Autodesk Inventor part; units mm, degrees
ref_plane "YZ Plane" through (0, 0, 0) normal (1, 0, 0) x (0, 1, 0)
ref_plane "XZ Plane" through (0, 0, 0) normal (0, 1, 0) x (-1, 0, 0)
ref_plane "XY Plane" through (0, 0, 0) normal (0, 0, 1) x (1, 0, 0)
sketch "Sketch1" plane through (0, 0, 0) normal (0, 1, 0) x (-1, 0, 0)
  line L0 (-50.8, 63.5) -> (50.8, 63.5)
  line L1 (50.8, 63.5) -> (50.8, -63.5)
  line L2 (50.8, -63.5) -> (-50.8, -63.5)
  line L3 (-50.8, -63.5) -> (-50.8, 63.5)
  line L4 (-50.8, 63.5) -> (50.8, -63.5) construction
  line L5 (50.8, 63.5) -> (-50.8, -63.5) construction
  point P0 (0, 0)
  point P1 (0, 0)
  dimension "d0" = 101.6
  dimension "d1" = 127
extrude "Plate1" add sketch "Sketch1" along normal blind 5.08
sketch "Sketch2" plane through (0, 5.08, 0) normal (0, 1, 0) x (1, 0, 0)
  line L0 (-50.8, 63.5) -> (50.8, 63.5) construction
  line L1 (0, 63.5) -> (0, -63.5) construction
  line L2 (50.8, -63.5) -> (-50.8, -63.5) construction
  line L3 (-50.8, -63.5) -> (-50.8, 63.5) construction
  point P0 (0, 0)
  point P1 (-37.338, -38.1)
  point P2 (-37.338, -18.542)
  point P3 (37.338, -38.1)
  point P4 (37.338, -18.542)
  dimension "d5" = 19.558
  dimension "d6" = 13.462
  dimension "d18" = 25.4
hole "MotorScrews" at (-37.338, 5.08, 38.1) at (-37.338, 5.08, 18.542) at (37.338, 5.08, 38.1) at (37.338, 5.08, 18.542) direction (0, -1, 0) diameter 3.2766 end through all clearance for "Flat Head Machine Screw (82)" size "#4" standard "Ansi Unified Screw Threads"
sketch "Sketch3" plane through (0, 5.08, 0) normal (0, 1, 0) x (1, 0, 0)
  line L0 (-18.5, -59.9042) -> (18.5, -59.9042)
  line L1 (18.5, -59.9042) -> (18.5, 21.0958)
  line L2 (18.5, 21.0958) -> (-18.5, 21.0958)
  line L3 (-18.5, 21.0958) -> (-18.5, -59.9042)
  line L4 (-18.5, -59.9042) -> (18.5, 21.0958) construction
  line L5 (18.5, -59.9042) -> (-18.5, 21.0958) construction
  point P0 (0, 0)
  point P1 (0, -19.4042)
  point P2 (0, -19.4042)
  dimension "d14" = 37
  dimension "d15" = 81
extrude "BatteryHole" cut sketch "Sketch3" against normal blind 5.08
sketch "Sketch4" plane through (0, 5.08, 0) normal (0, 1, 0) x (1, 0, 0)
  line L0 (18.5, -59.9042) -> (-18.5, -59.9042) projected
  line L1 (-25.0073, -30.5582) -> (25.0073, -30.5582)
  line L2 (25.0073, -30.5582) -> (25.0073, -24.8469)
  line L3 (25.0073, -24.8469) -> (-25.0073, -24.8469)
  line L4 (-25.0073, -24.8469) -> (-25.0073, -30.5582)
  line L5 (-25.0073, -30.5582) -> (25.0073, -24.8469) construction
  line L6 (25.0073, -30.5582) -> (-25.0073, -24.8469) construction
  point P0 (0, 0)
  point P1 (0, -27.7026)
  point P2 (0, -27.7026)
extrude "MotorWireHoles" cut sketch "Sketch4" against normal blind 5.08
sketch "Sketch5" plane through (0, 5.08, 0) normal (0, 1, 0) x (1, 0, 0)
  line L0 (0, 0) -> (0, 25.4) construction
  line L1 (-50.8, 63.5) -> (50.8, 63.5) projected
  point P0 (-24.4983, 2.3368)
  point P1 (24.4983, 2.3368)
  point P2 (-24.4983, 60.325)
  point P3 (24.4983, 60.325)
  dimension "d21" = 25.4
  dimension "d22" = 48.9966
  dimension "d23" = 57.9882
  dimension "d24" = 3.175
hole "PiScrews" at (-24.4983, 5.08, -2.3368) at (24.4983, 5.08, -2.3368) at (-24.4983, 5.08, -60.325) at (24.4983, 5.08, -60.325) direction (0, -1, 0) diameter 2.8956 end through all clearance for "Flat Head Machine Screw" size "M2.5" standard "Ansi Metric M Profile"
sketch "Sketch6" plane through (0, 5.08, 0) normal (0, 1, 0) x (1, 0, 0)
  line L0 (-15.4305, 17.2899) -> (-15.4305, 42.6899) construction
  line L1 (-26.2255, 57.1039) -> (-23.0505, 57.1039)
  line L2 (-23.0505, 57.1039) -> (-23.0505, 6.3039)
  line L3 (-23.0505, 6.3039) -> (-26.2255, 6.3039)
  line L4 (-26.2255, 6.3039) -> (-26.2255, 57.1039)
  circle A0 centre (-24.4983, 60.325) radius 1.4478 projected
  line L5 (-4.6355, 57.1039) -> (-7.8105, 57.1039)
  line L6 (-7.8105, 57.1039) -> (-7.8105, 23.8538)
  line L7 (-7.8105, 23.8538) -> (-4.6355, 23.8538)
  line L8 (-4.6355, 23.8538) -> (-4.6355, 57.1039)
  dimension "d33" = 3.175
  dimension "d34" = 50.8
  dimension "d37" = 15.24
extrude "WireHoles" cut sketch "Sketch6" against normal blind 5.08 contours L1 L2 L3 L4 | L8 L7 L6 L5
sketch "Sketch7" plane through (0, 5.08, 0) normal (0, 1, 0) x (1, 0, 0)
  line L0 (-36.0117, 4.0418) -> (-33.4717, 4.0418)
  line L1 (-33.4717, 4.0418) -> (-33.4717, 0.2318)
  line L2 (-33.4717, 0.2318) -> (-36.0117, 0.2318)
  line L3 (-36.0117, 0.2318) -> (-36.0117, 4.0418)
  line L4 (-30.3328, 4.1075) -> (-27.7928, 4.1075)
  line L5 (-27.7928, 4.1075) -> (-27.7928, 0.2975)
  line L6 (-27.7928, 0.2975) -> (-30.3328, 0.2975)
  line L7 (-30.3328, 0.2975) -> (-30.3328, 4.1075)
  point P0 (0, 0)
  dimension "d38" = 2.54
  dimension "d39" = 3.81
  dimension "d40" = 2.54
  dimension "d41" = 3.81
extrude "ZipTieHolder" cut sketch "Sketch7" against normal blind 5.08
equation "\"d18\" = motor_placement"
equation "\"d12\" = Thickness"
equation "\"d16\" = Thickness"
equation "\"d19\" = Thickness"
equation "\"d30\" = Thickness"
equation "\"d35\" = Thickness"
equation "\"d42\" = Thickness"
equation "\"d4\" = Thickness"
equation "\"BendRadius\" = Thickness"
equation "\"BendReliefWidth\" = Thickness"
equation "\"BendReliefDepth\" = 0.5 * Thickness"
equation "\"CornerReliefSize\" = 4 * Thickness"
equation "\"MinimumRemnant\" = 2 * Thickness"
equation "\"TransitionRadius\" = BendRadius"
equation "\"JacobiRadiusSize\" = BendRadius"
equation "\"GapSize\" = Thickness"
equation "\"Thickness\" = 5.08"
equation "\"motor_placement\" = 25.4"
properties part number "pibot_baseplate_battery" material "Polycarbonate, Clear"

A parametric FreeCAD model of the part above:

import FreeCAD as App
import Part
import Sketcher

V = App.Vector
Q = App.Units.Quantity

doc = App.newDocument("Part")
body = doc.addObject("PartDesign::Body", "Body")

# Sketch on XZ plane
sketch1 = body.newObject("Sketcher::SketchObject", "Sketch")
sketch1.AttachmentSupport = (doc.getObject("XZ_Plane"), [""])
sketch1.MapMode = "FlatFace"
sketch1.addGeometry([
    Part.LineSegment(V(-51, 64, 0), V(51, 64, 0)),
    Part.LineSegment(V(51, 64, 0), V(51, -64, 0)),
    Part.LineSegment(V(51, -64, 0), V(-51, -64, 0)),
    Part.LineSegment(V(-51, -64, 0), V(-51, 64, 0)),
], False)
sketch1.addConstraint([
    Sketcher.Constraint("Coincident", 0, 2, 1, 1),
    Sketcher.Constraint("Coincident", 1, 2, 2, 1),
    Sketcher.Constraint("Coincident", 2, 2, 3, 1),
    Sketcher.Constraint("Coincident", 3, 2, 0, 1),
    Sketcher.Constraint("Horizontal", 0),
    Sketcher.Constraint("Vertical", 1),
    Sketcher.Constraint("Horizontal", 2),
    Sketcher.Constraint("Vertical", 3),
    Sketcher.Constraint("Symmetric", 0, 2, 2, 2, -1, 1),
    Sketcher.Constraint("DistanceX", 0, 1, 0, 2, Q("4 in")),
    Sketcher.Constraint("DistanceY", 1, 2, 1, 1, Q("5 in")),
])
pad1 = body.newObject("PartDesign::Pad", "Pad")
pad1.Profile = sketch1
pad1.Length = Q("0.2 in")
pad1.Reversed = True

# Sketch on XZ plane
sketch2 = body.newObject("Sketcher::SketchObject", "Sketch001")
sketch2.AttachmentSupport = (doc.getObject("XZ_Plane"), [""])
sketch2.MapMode = "FlatFace"
sketch2.AttachmentOffset = App.Placement(V(0, 0, -0.2 * 25.4), App.Rotation())
sketch2.addGeometry([
    Part.Circle(V(-37.3, 38.1, 0), V(0, 0, 1), 1.6),
    Part.Circle(V(-37.3, 18.5, 0), V(0, 0, 1), 1.6),
    Part.Circle(V(37.3, 38.1, 0), V(0, 0, 1), 1.6),
    Part.Circle(V(37.3, 18.5, 0), V(0, 0, 1), 1.6),
], False)
sketch2.addConstraint([
    Sketcher.Constraint("Equal", 0, 1),
    Sketcher.Constraint("Equal", 1, 2),
    Sketcher.Constraint("Equal", 2, 3),
    Sketcher.Constraint("Symmetric", 0, 3, 2, 3, -2),
    Sketcher.Constraint("Symmetric", 1, 3, 3, 3, -2),
    Sketcher.Constraint("Vertical", 0, 3, 1, 3),
    Sketcher.Constraint("Diameter", 0, Q("0.129 in")),
    Sketcher.Constraint("DistanceY", -1, 1, 0, 3, Q("1.5 in")),
    Sketcher.Constraint("DistanceX", 0, 3, -1, 1, Q("1.47 in")),
    Sketcher.Constraint("DistanceY", -1, 1, 1, 3, Q("0.73 in")),
])
doc.recompute()
hole = body.newObject("PartDesign::Hole", "Hole")
hole.Profile = sketch2
hole.ThreadType = "None"
hole.Diameter = Q("0.129 in")
hole.DepthType = "ThroughAll"
hole.Reversed = True

# Sketch on XZ plane
sketch3 = body.newObject("Sketcher::SketchObject", "Sketch002")
sketch3.AttachmentSupport = (doc.getObject("XZ_Plane"), [""])
sketch3.MapMode = "FlatFace"
sketch3.AttachmentOffset = App.Placement(V(0, 0, -0.2 * 25.4), App.Rotation())
sketch3.addGeometry([
    Part.LineSegment(V(-18, -21, 0), V(-18, 60, 0)),
    Part.LineSegment(V(-18, 60, 0), V(18, 60, 0)),
    Part.LineSegment(V(18, 60, 0), V(18, -21, 0)),
    Part.LineSegment(V(18, -21, 0), V(-18, -21, 0)),
], False)
sketch3.addConstraint([
    Sketcher.Constraint("Coincident", 0, 2, 1, 1),
    Sketcher.Constraint("Coincident", 1, 2, 2, 1),
    Sketcher.Constraint("Coincident", 2, 2, 3, 1),
    Sketcher.Constraint("Coincident", 3, 2, 0, 1),
    Sketcher.Constraint("Vertical", 0),
    Sketcher.Constraint("Horizontal", 1),
    Sketcher.Constraint("Vertical", 2),
    Sketcher.Constraint("Horizontal", 3),
    Sketcher.Constraint("DistanceX", 1, 1, 1, 2, Q("1.4567 in")),
    Sketcher.Constraint("DistanceY", 0, 1, 0, 2, 81.0),
    Sketcher.Constraint("DistanceX", 0, 2, -1, 1, 18.5),
    Sketcher.Constraint("DistanceY", -1, 1, 0, 2, 59.9042),
])
pocket1 = body.newObject("PartDesign::Pocket", "Pocket")
pocket1.Profile = sketch3
pocket1.Length = Q("0.2 in")
pocket1.Reversed = True

# Sketch on XZ plane
sketch4 = body.newObject("Sketcher::SketchObject", "Sketch003")
sketch4.AttachmentSupport = (doc.getObject("XZ_Plane"), [""])
sketch4.MapMode = "FlatFace"
sketch4.AttachmentOffset = App.Placement(V(0, 0, -0.2 * 25.4), App.Rotation())
sketch4.addGeometry([
    Part.LineSegment(V(-25, 25, 0), V(-25, 31, 0)),
    Part.LineSegment(V(-25, 31, 0), V(25, 31, 0)),
    Part.LineSegment(V(25, 31, 0), V(25, 25, 0)),
    Part.LineSegment(V(25, 25, 0), V(-25, 25, 0)),
], False)
sketch4.addConstraint([
    Sketcher.Constraint("Coincident", 0, 2, 1, 1),
    Sketcher.Constraint("Coincident", 1, 2, 2, 1),
    Sketcher.Constraint("Coincident", 2, 2, 3, 1),
    Sketcher.Constraint("Coincident", 3, 2, 0, 1),
    Sketcher.Constraint("Vertical", 0),
    Sketcher.Constraint("Horizontal", 1),
    Sketcher.Constraint("Vertical", 2),
    Sketcher.Constraint("Horizontal", 3),
    Sketcher.Constraint("DistanceX", 1, 1, 1, 2, 50.0146),
    Sketcher.Constraint("DistanceY", 0, 1, 0, 2, 5.7113),
    Sketcher.Constraint("DistanceX", 0, 2, -1, 1, 25.0073),
    Sketcher.Constraint("DistanceY", -1, 1, 0, 2, 30.5582),
])
pocket2 = body.newObject("PartDesign::Pocket", "Pocket001")
pocket2.Profile = sketch4
pocket2.Length = Q("0.2 in")
pocket2.Reversed = True

# Sketch on XZ plane
sketch5 = body.newObject("Sketcher::SketchObject", "Sketch004")
sketch5.AttachmentSupport = (doc.getObject("XZ_Plane"), [""])
sketch5.MapMode = "FlatFace"
sketch5.AttachmentOffset = App.Placement(V(0, 0, -0.2 * 25.4), App.Rotation())
sketch5.addGeometry([
    Part.Circle(V(-24.5, -2.3, 0), V(0, 0, 1), 1.4),
    Part.Circle(V(24.5, -2.3, 0), V(0, 0, 1), 1.4),
    Part.Circle(V(-24.5, -60.3, 0), V(0, 0, 1), 1.4),
    Part.Circle(V(24.5, -60.3, 0), V(0, 0, 1), 1.4),
], False)
sketch5.addConstraint([
    Sketcher.Constraint("Equal", 0, 1),
    Sketcher.Constraint("Equal", 1, 2),
    Sketcher.Constraint("Equal", 2, 3),
    Sketcher.Constraint("Symmetric", 0, 3, 1, 3, -2),
    Sketcher.Constraint("Symmetric", 2, 3, 3, 3, -2),
    Sketcher.Constraint("Vertical", 0, 3, 2, 3),
    Sketcher.Constraint("Diameter", 0, Q("0.114 in")),
    Sketcher.Constraint("DistanceY", 0, 3, -1, 1, Q("0.092 in")),
    Sketcher.Constraint("DistanceY", 2, 3, -1, 1, Q("2.375 in")),
    Sketcher.Constraint("DistanceX", 0, 3, 1, 3, Q("1.929 in")),
])
doc.recompute()
hole2 = body.newObject("PartDesign::Hole", "Hole001")
hole2.Profile = sketch5
hole2.ThreadType = "None"
hole2.Diameter = Q("0.114 in")
hole2.DepthType = "ThroughAll"
hole2.Reversed = True

# Sketch on XZ plane
sketch6 = body.newObject("Sketcher::SketchObject", "Sketch005")
sketch6.AttachmentSupport = (doc.getObject("XZ_Plane"), [""])
sketch6.MapMode = "FlatFace"
sketch6.AttachmentOffset = App.Placement(V(0, 0, -0.2 * 25.4), App.Rotation())
sketch6.addGeometry([
    Part.LineSegment(V(-23.1, -57.1, 0), V(-26.2, -57.1, 0)),  # 0
    Part.LineSegment(V(-26.2, -57.1, 0), V(-26.2, -6.3, 0)),  # 1
    Part.LineSegment(V(-26.2, -6.3, 0), V(-23.1, -6.3, 0)),  # 2
    Part.LineSegment(V(-23.1, -6.3, 0), V(-23.1, -57.1, 0)),  # 3
    Part.LineSegment(V(-4.6, -23.9, 0), V(-4.6, -57.1, 0)),  # 4
    Part.LineSegment(V(-4.6, -57.1, 0), V(-7.8, -57.1, 0)),  # 5
    Part.LineSegment(V(-7.8, -57.1, 0), V(-7.8, -23.9, 0)),  # 6
    Part.LineSegment(V(-7.8, -23.9, 0), V(-4.6, -23.9, 0)),  # 7
], False)
sketch6.addConstraint([
    Sketcher.Constraint("Coincident", 0, 2, 1, 1),
    Sketcher.Constraint("Coincident", 1, 2, 2, 1),
    Sketcher.Constraint("Coincident", 2, 2, 3, 1),
    Sketcher.Constraint("Coincident", 3, 2, 0, 1),
    Sketcher.Constraint("Coincident", 4, 2, 5, 1),
    Sketcher.Constraint("Coincident", 5, 2, 6, 1),
    Sketcher.Constraint("Coincident", 6, 2, 7, 1),
    Sketcher.Constraint("Coincident", 7, 2, 4, 1),
    Sketcher.Constraint("Horizontal", 0),
    Sketcher.Constraint("Vertical", 1),
    Sketcher.Constraint("Horizontal", 2),
    Sketcher.Constraint("Vertical", 3),
    Sketcher.Constraint("Vertical", 4),
    Sketcher.Constraint("Horizontal", 5),
    Sketcher.Constraint("Vertical", 6),
    Sketcher.Constraint("Horizontal", 7),
    Sketcher.Constraint("Horizontal", 3, 2, 4, 2),
    Sketcher.Constraint("Equal", 2, 5),
    Sketcher.Constraint("DistanceY", 1, 1, 1, 2, Q("2 in")),
    Sketcher.Constraint("DistanceX", 3, 2, 5, 2, Q("0.6 in")),
    Sketcher.Constraint("DistanceX", 0, 2, 0, 1, Q("0.125 in")),
    Sketcher.Constraint("DistanceY", 4, 2, 4, 1, 33.25),
    Sketcher.Constraint("DistanceX", 0, 2, -1, 1, Q("1.0325 in")),
    Sketcher.Constraint("DistanceY", 0, 2, -1, 1, Q("2.248189 in")),
])
pocket3 = body.newObject("PartDesign::Pocket", "Pocket002")
pocket3.Profile = sketch6
pocket3.Length = Q("0.2 in")
pocket3.Reversed = True

# Sketch on XZ plane
sketch7 = body.newObject("Sketcher::SketchObject", "Sketch006")
sketch7.AttachmentSupport = (doc.getObject("XZ_Plane"), [""])
sketch7.MapMode = "FlatFace"
sketch7.AttachmentOffset = App.Placement(V(0, 0, -0.2 * 25.4), App.Rotation())
sketch7.addGeometry([
    Part.LineSegment(V(-33.5, -4, 0), V(-36, -4, 0)),  # 0
    Part.LineSegment(V(-36, -4, 0), V(-36, -0.2, 0)),  # 1
    Part.LineSegment(V(-36, -0.2, 0), V(-33.5, -0.2, 0)),  # 2
    Part.LineSegment(V(-33.5, -0.2, 0), V(-33.5, -4, 0)),  # 3
    Part.LineSegment(V(-27.8, -4.1, 0), V(-30.3, -4.1, 0)),  # 4
    Part.LineSegment(V(-30.3, -4.1, 0), V(-30.3, -0.3, 0)),  # 5
    Part.LineSegment(V(-30.3, -0.3, 0), V(-27.8, -0.3, 0)),  # 6
    Part.LineSegment(V(-27.8, -0.3, 0), V(-27.8, -4.1, 0)),  # 7
], False)
sketch7.addConstraint([
    Sketcher.Constraint("Coincident", 0, 2, 1, 1),
    Sketcher.Constraint("Coincident", 1, 2, 2, 1),
    Sketcher.Constraint("Coincident", 2, 2, 3, 1),
    Sketcher.Constraint("Coincident", 3, 2, 0, 1),
    Sketcher.Constraint("Coincident", 4, 2, 5, 1),
    Sketcher.Constraint("Coincident", 5, 2, 6, 1),
    Sketcher.Constraint("Coincident", 6, 2, 7, 1),
    Sketcher.Constraint("Coincident", 7, 2, 4, 1),
    Sketcher.Constraint("Horizontal", 0),
    Sketcher.Constraint("Vertical", 1),
    Sketcher.Constraint("Horizontal", 2),
    Sketcher.Constraint("Vertical", 3),
    Sketcher.Constraint("Horizontal", 4),
    Sketcher.Constraint("Vertical", 5),
    Sketcher.Constraint("Horizontal", 6),
    Sketcher.Constraint("Vertical", 7),
    Sketcher.Constraint("Equal", 2, 4),
    Sketcher.Constraint("Equal", 3, 5),
    Sketcher.Constraint("DistanceX", 0, 2, 0, 1, Q("0.1 in")),
    Sketcher.Constraint("DistanceY", 1, 1, 1, 2, Q("0.15 in")),
    Sketcher.Constraint("DistanceX", 4, 2, -1, 1, Q("1.1942 in")),
    Sketcher.Constraint("DistanceX", 0, 2, -1, 1, 36.0117),
    Sketcher.Constraint("DistanceY", 0, 2, -1, 1, 4.0418),
    Sketcher.Constraint("DistanceY", 4, 2, -1, 1, 4.1075),
])
pocket4 = body.newObject("PartDesign::Pocket", "Pocket003")
pocket4.Profile = sketch7
pocket4.Length = Q("0.2 in")
pocket4.Reversed = True

doc.recompute()
